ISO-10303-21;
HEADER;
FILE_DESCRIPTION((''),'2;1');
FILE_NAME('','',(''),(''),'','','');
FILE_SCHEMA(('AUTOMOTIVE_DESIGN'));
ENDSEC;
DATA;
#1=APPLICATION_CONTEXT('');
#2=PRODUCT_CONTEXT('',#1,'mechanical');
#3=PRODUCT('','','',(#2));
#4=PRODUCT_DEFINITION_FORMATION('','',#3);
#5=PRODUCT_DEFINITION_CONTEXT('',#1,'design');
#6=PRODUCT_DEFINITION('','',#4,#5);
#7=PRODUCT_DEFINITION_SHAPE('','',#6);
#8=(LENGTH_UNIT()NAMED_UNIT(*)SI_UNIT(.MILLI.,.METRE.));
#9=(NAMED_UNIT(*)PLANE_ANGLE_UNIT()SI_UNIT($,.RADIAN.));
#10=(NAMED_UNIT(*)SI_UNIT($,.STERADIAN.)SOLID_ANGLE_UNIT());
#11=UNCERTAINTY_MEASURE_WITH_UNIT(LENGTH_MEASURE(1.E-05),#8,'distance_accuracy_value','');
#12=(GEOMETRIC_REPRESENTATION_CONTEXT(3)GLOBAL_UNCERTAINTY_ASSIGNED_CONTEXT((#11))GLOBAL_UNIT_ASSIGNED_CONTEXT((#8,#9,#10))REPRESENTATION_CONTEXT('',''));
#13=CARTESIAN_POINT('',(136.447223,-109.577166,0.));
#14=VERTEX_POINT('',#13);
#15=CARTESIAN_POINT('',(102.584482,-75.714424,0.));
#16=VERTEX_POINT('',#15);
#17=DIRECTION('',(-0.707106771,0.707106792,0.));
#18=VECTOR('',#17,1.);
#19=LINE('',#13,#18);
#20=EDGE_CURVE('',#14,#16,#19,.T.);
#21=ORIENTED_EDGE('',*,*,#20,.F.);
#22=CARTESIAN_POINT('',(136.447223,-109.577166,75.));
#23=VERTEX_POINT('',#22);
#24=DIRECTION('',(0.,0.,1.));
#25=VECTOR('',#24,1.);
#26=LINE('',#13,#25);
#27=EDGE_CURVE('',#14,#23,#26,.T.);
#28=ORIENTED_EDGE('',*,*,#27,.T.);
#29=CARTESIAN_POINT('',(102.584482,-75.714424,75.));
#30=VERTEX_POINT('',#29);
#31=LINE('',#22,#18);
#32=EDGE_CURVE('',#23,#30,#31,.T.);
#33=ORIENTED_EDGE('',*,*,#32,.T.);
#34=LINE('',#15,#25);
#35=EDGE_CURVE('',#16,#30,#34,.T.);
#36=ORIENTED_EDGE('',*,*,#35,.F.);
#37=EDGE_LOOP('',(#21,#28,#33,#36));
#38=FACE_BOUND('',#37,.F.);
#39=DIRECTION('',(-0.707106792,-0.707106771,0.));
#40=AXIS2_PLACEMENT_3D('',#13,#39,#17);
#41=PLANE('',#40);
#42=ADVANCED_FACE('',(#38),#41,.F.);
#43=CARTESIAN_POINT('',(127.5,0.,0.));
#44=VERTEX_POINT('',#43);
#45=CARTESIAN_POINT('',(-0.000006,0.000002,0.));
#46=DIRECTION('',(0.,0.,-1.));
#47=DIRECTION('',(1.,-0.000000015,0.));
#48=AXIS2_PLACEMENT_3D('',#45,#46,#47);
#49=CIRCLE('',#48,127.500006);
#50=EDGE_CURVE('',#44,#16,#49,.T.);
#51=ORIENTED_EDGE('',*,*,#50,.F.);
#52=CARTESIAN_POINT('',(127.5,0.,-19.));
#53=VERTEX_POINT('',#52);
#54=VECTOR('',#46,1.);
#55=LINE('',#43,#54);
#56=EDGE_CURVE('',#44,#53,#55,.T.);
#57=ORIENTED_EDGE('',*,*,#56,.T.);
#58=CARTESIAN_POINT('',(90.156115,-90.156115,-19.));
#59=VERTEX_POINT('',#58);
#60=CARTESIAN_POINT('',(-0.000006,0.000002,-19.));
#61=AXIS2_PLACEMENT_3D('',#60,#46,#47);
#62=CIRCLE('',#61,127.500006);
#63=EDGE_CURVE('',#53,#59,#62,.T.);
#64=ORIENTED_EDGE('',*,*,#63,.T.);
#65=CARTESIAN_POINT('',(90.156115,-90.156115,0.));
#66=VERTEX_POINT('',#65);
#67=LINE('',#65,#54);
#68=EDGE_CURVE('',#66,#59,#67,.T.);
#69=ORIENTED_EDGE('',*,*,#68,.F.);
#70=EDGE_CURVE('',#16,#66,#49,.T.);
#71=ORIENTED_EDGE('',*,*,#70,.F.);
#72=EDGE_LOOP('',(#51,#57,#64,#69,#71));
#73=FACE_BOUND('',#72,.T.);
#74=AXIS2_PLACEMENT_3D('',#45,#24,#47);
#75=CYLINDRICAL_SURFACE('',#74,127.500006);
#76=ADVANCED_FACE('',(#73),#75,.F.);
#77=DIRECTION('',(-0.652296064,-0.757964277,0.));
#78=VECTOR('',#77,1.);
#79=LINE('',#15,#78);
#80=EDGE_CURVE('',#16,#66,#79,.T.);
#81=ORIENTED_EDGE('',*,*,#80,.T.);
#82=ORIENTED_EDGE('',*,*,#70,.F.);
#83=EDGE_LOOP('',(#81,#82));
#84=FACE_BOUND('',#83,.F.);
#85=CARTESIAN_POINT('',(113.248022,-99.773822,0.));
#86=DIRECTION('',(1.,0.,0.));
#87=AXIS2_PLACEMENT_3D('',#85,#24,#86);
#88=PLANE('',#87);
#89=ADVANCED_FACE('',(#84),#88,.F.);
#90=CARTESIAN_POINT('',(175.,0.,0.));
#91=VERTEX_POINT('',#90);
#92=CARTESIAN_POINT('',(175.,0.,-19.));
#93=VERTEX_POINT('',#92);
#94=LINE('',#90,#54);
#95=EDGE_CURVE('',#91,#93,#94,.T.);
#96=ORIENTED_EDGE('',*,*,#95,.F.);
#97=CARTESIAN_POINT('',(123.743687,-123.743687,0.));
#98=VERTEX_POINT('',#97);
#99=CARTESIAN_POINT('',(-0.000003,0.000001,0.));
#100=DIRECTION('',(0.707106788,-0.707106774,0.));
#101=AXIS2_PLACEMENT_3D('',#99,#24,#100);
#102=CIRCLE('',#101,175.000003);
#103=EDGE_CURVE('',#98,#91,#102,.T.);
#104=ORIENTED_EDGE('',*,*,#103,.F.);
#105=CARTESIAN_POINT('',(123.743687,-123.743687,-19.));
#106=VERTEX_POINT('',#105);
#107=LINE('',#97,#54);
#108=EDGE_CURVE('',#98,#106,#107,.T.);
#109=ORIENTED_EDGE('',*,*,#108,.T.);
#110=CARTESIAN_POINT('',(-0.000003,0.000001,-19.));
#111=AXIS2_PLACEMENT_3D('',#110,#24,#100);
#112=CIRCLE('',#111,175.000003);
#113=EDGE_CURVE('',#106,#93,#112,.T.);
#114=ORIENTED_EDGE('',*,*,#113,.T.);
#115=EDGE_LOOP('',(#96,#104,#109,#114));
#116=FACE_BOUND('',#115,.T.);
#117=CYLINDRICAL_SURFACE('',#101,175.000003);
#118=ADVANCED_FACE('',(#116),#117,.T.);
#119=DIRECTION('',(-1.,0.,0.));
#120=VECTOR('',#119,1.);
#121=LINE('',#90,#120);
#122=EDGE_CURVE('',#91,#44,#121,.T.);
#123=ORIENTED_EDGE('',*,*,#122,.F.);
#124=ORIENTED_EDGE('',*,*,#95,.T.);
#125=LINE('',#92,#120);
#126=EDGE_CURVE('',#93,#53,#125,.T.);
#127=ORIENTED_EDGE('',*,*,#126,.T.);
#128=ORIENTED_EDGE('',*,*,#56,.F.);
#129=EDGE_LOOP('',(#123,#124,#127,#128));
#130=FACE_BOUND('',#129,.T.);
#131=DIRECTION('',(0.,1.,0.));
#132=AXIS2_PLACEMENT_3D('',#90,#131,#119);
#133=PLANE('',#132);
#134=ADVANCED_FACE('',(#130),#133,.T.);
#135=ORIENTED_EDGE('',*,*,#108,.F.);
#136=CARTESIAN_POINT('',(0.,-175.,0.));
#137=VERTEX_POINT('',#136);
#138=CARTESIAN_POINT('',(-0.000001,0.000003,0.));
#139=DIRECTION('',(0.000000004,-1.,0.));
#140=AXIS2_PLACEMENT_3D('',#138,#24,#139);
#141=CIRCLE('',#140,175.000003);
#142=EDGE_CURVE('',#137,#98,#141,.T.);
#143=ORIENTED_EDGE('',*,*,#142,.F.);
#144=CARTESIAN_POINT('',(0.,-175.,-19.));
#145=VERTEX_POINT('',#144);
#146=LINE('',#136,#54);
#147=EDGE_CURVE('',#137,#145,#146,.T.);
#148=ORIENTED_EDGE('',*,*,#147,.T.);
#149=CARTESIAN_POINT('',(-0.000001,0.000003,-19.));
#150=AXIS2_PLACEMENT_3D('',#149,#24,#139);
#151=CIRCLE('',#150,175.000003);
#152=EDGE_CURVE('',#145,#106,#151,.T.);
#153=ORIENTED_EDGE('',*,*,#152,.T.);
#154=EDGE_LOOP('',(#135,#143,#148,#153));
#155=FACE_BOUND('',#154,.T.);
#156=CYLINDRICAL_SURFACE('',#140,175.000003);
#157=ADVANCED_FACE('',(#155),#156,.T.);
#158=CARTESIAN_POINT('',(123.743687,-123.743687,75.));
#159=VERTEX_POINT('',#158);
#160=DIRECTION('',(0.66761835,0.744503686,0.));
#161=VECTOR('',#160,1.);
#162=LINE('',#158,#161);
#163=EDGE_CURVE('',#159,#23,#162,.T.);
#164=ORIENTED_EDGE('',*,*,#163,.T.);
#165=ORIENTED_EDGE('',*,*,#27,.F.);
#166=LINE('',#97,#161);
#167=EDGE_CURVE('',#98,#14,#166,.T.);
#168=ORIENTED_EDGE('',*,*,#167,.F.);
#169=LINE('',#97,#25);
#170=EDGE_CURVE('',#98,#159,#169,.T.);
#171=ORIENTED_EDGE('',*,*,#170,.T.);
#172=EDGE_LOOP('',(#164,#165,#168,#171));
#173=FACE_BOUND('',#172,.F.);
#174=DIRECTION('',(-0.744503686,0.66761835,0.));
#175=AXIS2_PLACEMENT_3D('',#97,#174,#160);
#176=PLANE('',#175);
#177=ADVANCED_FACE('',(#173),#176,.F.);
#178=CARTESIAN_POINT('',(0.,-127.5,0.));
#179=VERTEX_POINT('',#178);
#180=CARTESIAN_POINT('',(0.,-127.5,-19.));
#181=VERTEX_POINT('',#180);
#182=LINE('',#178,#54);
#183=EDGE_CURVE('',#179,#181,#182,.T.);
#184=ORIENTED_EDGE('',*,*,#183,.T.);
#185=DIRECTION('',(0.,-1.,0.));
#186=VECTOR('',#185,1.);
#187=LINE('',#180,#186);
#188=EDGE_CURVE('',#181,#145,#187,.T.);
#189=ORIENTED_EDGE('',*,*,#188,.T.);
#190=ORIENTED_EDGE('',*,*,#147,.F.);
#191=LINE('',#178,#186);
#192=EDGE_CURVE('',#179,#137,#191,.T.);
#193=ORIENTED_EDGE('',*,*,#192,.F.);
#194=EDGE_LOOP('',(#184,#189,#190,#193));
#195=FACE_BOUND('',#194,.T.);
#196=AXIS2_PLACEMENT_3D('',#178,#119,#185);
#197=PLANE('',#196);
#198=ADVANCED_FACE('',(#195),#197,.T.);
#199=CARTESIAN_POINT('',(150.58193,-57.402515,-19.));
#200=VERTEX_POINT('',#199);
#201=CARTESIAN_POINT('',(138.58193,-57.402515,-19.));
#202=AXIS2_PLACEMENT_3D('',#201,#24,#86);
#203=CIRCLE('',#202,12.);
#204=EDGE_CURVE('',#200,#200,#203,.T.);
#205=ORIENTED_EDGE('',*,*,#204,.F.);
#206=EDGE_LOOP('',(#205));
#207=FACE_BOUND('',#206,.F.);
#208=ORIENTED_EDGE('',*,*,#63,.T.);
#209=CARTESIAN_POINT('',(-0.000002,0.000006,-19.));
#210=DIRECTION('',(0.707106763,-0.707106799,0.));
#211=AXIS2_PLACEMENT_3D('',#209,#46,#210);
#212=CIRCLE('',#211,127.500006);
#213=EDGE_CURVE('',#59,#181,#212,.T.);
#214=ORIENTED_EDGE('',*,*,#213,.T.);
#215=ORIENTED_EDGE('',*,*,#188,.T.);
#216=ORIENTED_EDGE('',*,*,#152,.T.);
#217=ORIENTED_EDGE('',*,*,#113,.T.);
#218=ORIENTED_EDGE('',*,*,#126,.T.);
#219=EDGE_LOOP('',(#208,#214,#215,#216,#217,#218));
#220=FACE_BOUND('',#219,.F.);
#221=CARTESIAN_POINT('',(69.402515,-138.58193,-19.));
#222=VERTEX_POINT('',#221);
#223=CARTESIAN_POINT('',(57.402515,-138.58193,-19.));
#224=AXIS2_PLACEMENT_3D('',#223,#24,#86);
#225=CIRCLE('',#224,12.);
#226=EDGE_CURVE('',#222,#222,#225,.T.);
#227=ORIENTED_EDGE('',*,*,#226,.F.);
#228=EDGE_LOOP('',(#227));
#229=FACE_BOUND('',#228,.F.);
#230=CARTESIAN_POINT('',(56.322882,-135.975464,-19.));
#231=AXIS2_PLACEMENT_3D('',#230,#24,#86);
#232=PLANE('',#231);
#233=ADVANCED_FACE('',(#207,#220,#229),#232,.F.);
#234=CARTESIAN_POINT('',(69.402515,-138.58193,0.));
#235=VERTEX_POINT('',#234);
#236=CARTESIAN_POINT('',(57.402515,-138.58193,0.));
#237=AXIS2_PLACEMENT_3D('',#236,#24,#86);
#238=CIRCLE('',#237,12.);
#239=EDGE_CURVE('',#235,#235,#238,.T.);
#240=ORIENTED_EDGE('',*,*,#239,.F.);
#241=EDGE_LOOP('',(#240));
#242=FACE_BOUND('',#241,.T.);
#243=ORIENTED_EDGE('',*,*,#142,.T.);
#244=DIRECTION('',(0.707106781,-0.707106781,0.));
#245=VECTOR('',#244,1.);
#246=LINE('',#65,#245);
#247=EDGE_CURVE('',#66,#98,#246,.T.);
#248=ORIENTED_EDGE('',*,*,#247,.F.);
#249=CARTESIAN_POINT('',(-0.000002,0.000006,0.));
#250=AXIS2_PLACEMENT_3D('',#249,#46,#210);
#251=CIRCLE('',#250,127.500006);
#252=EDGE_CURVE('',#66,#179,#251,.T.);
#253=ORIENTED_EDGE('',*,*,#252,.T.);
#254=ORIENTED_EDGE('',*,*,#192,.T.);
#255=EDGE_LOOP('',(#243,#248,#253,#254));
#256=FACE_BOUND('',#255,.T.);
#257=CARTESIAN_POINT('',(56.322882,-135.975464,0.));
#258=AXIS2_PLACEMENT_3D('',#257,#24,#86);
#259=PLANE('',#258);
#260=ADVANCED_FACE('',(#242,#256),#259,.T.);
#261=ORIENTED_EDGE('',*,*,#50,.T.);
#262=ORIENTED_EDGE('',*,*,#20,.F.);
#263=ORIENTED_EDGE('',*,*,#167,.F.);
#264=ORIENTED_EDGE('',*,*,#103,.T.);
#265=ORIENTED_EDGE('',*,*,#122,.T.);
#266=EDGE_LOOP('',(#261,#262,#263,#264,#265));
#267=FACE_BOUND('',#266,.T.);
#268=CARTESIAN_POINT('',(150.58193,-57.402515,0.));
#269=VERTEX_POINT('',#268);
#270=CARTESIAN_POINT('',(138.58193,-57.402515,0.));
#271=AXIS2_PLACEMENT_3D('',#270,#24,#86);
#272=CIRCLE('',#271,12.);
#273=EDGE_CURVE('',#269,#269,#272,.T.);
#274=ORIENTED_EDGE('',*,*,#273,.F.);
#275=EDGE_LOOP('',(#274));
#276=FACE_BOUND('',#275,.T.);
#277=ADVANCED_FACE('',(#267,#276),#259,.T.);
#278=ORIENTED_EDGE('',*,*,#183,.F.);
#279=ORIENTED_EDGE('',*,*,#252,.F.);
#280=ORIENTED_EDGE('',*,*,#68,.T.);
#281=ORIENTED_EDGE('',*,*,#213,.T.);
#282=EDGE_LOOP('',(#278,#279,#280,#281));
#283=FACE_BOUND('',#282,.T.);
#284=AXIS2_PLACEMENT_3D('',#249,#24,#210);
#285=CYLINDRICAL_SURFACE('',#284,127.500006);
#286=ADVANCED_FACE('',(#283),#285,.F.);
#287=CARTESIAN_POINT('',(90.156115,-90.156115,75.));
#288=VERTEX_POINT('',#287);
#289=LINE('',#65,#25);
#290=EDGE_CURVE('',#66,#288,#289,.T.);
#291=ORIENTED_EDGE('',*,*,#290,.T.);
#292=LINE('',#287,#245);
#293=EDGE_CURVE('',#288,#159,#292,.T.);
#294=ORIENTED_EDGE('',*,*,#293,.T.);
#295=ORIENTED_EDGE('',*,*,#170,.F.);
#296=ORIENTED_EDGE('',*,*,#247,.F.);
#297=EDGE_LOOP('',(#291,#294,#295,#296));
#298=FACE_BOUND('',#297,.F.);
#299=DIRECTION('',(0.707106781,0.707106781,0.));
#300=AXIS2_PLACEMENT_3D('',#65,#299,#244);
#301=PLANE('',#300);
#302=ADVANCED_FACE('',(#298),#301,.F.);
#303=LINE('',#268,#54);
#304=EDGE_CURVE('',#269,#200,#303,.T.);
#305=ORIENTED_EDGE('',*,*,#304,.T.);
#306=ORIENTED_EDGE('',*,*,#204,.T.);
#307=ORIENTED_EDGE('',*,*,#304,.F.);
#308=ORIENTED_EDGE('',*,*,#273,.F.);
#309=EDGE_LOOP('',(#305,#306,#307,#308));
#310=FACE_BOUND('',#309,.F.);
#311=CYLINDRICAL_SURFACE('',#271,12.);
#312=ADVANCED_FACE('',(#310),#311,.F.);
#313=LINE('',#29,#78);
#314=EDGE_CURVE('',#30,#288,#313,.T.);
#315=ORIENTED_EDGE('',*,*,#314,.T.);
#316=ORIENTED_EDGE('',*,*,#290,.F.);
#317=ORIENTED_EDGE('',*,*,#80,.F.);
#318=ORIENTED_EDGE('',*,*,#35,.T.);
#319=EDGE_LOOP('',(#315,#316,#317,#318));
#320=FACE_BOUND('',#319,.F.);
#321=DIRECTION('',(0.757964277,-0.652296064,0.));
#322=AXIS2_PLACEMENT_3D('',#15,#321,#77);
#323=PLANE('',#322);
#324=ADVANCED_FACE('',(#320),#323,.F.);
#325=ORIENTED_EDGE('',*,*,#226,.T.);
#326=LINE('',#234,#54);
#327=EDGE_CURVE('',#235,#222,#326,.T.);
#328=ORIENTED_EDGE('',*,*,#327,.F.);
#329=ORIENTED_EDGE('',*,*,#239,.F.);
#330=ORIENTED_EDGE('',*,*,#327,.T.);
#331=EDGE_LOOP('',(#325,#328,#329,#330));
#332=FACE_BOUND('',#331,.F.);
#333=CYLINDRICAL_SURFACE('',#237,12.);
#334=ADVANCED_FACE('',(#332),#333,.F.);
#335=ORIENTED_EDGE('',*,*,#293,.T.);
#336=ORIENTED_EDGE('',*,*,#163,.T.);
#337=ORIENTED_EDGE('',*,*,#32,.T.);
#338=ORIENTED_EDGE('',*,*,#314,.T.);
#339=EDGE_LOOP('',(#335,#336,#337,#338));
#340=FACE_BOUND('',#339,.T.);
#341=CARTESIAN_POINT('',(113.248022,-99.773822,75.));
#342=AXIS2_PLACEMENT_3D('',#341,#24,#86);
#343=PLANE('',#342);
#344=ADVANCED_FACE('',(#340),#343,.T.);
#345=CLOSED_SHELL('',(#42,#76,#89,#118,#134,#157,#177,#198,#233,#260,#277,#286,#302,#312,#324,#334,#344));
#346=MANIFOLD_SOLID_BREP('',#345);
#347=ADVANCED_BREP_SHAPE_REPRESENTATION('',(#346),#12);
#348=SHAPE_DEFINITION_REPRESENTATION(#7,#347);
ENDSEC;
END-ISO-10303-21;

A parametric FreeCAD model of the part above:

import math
import FreeCAD as App
import Part
import Sketcher
Q = App.Units.Quantity


def add_polygon(sketch, points):
    """Adds a closed chain of lines whose ends are joined by coincident constraints."""
    first, n = sketch.GeometryCount, len(points)
    for a, b in zip(points, points[1:] + points[:1]):
        sketch.addGeometry(Part.LineSegment(App.Vector(*a, 0), App.Vector(*b, 0)), False)
    for i in range(n):
        sketch.addConstraint(Sketcher.Constraint("Coincident", first + i, 2, first + (i + 1) % n, 1))

doc = App.newDocument("Part")
params = doc.addObject("Spreadsheet::Sheet", "Params")
for row, (alias, value) in enumerate([
    ("sketch1_diameter", "24 mm"),
    ("sketch1_width", "47.5 mm"),
    ("pad1_length", "19 mm"),
    ("sketch2_length", "47.5 mm"),
    ("pad2_length", "75 mm"),
], start=1):
    params.set(f"A{row}", alias)
    params.set(f"B{row}", "=" + value)
    params.setAlias(f"B{row}", alias)

body = doc.addObject("PartDesign::Body", "Body")

# Sketch on XY plane
sketch1 = body.newObject("Sketcher::SketchObject", "Sketch")
sketch1.AttachmentSupport = (doc.getObject("XY_Plane"), [""])
sketch1.MapMode = "FlatFace"
sketch1.addGeometry(Part.ArcOfCircle(Part.Circle(App.Vector(0, 0, 0), App.Vector(0, 0, 1), 128), math.radians(-90), math.radians(-45)), False)
sketch1.addGeometry(Part.LineSegment(App.Vector(0, -128, 0), App.Vector(0, -175, 0)), False)
sketch1.addGeometry(Part.ArcOfCircle(Part.Circle(App.Vector(0, 0, 0), App.Vector(0, 0, 1), 175), math.radians(-90), math.radians(-45)), False)
sketch1.addGeometry(Part.ArcOfCircle(Part.Circle(App.Vector(0, 0, 0), App.Vector(0, 0, 1), 175), math.radians(-45), math.radians(0)), False)
sketch1.addGeometry(Part.LineSegment(App.Vector(175, 0, 0), App.Vector(128, 0, 0)), False)
sketch1.addGeometry(Part.ArcOfCircle(Part.Circle(App.Vector(0, 0, 0), App.Vector(0, 0, 1), 128), math.radians(-45), math.radians(0)), False)
sketch1.addGeometry(Part.Circle(App.Vector(57, -139, 0), App.Vector(0, 0, 1), 12), False)
sketch1.addGeometry(Part.Circle(App.Vector(139, -57, 0), App.Vector(0, 0, 1), 12), False)
sketch1.addConstraint(Sketcher.Constraint("Coincident", 0, 1, 1, 1))
sketch1.addConstraint(Sketcher.Constraint("Coincident", 1, 2, 2, 1))
sketch1.addConstraint(Sketcher.Constraint("Tangent", 2, 2, 3, 1))
sketch1.addConstraint(Sketcher.Constraint("Coincident", 3, 2, 4, 1))
sketch1.addConstraint(Sketcher.Constraint("Coincident", 4, 2, 5, 2))
sketch1.addConstraint(Sketcher.Constraint("Tangent", 5, 1, 0, 2))
sketch1.addConstraint(Sketcher.Constraint("Vertical", 1))
sketch1.addConstraint(Sketcher.Constraint("Horizontal", 4))
sketch1.addConstraint(Sketcher.Constraint("Coincident", 0, 3, -1, 1))
sketch1.addConstraint(Sketcher.Constraint("Coincident", 2, 3, -1, 1))
sketch1.addConstraint(Sketcher.Constraint("Equal", 2, 3))
sketch1.addConstraint(Sketcher.Constraint("Equal", 0, 5))
sketch1.addConstraint(Sketcher.Constraint("Equal", 6, 7))
sketch1.addConstraint(Sketcher.Constraint("PointOnObject", 0, 1, -2))
sketch1.addConstraint(Sketcher.Constraint("PointOnObject", 3, 2, -1))
sketch1.addConstraint(Sketcher.Constraint("Diameter", 6, 24.0))
sketch1.addConstraint(Sketcher.Constraint("DistanceX", 4, 2, 4, 1, 47.5))
sketch1.addConstraint(Sketcher.Constraint("DistanceY", 1, 2, -1, 1, 175.0))
sketch1.addConstraint(Sketcher.Constraint("DistanceX", 6, 3, 5, 1, 32.7536))
sketch1.addConstraint(Sketcher.Constraint("DistanceY", 5, 1, 7, 3, 32.7536))
sketch1.addConstraint(Sketcher.Constraint("DistanceY", 6, 3, -1, 1, 138.58193))
sketch1.addConstraint(Sketcher.Constraint("DistanceX", -1, 1, 7, 3, 138.58193))
sketch1.addConstraint(Sketcher.Constraint("DistanceX", 3, 3, 6, 3, 57.402518))
sketch1.addConstraint(Sketcher.Constraint("DistanceX", 6, 3, 2, 2, 66.341172))
sketch1.setExpression("Constraints[15]", "Params.sketch1_diameter")
sketch1.setExpression("Constraints[16]", "Params.sketch1_width")
pad1 = body.newObject("PartDesign::Pad", "Pad")
pad1.Profile = sketch1
pad1.setExpression("Length", "Params.pad1_length")
pad1.Reversed = True

# Sketch on XY plane
sketch2 = body.newObject("Sketcher::SketchObject", "Sketch001")
sketch2.AttachmentSupport = (doc.getObject("XY_Plane"), [""])
sketch2.MapMode = "FlatFace"
add_polygon(sketch2, [(102.584482, -75.714424), (90.156115, -90.156115), (123.743687, -123.743687), (136.447223, -109.577166)])  # lines 0-3
sketch2.addConstraint(Sketcher.Constraint("Parallel", 1, 3))
sketch2.addConstraint(Sketcher.Constraint("Angle", 1, Q("-45 deg")))
sketch2.addConstraint(Sketcher.Constraint("Distance", 1, 47.5))
sketch2.addConstraint(Sketcher.Constraint("Distance", 0, 19.053261))
sketch2.addConstraint(Sketcher.Constraint("Distance", 2, 19.028141))
sketch2.addConstraint(Sketcher.Constraint("Distance", 3, 47.889148))
sketch2.addConstraint(Sketcher.Constraint("DistanceX", -1, 1, 3, 2, 102.584482))
sketch2.addConstraint(Sketcher.Constraint("DistanceY", 0, 2, -1, 1, 90.156115))
sketch2.setExpression("Constraints[6]", "Params.sketch2_length")
pad2 = body.newObject("PartDesign::Pad", "Pad001")
pad2.Profile = sketch2
pad2.setExpression("Length", "Params.pad2_length")

doc.recompute()
